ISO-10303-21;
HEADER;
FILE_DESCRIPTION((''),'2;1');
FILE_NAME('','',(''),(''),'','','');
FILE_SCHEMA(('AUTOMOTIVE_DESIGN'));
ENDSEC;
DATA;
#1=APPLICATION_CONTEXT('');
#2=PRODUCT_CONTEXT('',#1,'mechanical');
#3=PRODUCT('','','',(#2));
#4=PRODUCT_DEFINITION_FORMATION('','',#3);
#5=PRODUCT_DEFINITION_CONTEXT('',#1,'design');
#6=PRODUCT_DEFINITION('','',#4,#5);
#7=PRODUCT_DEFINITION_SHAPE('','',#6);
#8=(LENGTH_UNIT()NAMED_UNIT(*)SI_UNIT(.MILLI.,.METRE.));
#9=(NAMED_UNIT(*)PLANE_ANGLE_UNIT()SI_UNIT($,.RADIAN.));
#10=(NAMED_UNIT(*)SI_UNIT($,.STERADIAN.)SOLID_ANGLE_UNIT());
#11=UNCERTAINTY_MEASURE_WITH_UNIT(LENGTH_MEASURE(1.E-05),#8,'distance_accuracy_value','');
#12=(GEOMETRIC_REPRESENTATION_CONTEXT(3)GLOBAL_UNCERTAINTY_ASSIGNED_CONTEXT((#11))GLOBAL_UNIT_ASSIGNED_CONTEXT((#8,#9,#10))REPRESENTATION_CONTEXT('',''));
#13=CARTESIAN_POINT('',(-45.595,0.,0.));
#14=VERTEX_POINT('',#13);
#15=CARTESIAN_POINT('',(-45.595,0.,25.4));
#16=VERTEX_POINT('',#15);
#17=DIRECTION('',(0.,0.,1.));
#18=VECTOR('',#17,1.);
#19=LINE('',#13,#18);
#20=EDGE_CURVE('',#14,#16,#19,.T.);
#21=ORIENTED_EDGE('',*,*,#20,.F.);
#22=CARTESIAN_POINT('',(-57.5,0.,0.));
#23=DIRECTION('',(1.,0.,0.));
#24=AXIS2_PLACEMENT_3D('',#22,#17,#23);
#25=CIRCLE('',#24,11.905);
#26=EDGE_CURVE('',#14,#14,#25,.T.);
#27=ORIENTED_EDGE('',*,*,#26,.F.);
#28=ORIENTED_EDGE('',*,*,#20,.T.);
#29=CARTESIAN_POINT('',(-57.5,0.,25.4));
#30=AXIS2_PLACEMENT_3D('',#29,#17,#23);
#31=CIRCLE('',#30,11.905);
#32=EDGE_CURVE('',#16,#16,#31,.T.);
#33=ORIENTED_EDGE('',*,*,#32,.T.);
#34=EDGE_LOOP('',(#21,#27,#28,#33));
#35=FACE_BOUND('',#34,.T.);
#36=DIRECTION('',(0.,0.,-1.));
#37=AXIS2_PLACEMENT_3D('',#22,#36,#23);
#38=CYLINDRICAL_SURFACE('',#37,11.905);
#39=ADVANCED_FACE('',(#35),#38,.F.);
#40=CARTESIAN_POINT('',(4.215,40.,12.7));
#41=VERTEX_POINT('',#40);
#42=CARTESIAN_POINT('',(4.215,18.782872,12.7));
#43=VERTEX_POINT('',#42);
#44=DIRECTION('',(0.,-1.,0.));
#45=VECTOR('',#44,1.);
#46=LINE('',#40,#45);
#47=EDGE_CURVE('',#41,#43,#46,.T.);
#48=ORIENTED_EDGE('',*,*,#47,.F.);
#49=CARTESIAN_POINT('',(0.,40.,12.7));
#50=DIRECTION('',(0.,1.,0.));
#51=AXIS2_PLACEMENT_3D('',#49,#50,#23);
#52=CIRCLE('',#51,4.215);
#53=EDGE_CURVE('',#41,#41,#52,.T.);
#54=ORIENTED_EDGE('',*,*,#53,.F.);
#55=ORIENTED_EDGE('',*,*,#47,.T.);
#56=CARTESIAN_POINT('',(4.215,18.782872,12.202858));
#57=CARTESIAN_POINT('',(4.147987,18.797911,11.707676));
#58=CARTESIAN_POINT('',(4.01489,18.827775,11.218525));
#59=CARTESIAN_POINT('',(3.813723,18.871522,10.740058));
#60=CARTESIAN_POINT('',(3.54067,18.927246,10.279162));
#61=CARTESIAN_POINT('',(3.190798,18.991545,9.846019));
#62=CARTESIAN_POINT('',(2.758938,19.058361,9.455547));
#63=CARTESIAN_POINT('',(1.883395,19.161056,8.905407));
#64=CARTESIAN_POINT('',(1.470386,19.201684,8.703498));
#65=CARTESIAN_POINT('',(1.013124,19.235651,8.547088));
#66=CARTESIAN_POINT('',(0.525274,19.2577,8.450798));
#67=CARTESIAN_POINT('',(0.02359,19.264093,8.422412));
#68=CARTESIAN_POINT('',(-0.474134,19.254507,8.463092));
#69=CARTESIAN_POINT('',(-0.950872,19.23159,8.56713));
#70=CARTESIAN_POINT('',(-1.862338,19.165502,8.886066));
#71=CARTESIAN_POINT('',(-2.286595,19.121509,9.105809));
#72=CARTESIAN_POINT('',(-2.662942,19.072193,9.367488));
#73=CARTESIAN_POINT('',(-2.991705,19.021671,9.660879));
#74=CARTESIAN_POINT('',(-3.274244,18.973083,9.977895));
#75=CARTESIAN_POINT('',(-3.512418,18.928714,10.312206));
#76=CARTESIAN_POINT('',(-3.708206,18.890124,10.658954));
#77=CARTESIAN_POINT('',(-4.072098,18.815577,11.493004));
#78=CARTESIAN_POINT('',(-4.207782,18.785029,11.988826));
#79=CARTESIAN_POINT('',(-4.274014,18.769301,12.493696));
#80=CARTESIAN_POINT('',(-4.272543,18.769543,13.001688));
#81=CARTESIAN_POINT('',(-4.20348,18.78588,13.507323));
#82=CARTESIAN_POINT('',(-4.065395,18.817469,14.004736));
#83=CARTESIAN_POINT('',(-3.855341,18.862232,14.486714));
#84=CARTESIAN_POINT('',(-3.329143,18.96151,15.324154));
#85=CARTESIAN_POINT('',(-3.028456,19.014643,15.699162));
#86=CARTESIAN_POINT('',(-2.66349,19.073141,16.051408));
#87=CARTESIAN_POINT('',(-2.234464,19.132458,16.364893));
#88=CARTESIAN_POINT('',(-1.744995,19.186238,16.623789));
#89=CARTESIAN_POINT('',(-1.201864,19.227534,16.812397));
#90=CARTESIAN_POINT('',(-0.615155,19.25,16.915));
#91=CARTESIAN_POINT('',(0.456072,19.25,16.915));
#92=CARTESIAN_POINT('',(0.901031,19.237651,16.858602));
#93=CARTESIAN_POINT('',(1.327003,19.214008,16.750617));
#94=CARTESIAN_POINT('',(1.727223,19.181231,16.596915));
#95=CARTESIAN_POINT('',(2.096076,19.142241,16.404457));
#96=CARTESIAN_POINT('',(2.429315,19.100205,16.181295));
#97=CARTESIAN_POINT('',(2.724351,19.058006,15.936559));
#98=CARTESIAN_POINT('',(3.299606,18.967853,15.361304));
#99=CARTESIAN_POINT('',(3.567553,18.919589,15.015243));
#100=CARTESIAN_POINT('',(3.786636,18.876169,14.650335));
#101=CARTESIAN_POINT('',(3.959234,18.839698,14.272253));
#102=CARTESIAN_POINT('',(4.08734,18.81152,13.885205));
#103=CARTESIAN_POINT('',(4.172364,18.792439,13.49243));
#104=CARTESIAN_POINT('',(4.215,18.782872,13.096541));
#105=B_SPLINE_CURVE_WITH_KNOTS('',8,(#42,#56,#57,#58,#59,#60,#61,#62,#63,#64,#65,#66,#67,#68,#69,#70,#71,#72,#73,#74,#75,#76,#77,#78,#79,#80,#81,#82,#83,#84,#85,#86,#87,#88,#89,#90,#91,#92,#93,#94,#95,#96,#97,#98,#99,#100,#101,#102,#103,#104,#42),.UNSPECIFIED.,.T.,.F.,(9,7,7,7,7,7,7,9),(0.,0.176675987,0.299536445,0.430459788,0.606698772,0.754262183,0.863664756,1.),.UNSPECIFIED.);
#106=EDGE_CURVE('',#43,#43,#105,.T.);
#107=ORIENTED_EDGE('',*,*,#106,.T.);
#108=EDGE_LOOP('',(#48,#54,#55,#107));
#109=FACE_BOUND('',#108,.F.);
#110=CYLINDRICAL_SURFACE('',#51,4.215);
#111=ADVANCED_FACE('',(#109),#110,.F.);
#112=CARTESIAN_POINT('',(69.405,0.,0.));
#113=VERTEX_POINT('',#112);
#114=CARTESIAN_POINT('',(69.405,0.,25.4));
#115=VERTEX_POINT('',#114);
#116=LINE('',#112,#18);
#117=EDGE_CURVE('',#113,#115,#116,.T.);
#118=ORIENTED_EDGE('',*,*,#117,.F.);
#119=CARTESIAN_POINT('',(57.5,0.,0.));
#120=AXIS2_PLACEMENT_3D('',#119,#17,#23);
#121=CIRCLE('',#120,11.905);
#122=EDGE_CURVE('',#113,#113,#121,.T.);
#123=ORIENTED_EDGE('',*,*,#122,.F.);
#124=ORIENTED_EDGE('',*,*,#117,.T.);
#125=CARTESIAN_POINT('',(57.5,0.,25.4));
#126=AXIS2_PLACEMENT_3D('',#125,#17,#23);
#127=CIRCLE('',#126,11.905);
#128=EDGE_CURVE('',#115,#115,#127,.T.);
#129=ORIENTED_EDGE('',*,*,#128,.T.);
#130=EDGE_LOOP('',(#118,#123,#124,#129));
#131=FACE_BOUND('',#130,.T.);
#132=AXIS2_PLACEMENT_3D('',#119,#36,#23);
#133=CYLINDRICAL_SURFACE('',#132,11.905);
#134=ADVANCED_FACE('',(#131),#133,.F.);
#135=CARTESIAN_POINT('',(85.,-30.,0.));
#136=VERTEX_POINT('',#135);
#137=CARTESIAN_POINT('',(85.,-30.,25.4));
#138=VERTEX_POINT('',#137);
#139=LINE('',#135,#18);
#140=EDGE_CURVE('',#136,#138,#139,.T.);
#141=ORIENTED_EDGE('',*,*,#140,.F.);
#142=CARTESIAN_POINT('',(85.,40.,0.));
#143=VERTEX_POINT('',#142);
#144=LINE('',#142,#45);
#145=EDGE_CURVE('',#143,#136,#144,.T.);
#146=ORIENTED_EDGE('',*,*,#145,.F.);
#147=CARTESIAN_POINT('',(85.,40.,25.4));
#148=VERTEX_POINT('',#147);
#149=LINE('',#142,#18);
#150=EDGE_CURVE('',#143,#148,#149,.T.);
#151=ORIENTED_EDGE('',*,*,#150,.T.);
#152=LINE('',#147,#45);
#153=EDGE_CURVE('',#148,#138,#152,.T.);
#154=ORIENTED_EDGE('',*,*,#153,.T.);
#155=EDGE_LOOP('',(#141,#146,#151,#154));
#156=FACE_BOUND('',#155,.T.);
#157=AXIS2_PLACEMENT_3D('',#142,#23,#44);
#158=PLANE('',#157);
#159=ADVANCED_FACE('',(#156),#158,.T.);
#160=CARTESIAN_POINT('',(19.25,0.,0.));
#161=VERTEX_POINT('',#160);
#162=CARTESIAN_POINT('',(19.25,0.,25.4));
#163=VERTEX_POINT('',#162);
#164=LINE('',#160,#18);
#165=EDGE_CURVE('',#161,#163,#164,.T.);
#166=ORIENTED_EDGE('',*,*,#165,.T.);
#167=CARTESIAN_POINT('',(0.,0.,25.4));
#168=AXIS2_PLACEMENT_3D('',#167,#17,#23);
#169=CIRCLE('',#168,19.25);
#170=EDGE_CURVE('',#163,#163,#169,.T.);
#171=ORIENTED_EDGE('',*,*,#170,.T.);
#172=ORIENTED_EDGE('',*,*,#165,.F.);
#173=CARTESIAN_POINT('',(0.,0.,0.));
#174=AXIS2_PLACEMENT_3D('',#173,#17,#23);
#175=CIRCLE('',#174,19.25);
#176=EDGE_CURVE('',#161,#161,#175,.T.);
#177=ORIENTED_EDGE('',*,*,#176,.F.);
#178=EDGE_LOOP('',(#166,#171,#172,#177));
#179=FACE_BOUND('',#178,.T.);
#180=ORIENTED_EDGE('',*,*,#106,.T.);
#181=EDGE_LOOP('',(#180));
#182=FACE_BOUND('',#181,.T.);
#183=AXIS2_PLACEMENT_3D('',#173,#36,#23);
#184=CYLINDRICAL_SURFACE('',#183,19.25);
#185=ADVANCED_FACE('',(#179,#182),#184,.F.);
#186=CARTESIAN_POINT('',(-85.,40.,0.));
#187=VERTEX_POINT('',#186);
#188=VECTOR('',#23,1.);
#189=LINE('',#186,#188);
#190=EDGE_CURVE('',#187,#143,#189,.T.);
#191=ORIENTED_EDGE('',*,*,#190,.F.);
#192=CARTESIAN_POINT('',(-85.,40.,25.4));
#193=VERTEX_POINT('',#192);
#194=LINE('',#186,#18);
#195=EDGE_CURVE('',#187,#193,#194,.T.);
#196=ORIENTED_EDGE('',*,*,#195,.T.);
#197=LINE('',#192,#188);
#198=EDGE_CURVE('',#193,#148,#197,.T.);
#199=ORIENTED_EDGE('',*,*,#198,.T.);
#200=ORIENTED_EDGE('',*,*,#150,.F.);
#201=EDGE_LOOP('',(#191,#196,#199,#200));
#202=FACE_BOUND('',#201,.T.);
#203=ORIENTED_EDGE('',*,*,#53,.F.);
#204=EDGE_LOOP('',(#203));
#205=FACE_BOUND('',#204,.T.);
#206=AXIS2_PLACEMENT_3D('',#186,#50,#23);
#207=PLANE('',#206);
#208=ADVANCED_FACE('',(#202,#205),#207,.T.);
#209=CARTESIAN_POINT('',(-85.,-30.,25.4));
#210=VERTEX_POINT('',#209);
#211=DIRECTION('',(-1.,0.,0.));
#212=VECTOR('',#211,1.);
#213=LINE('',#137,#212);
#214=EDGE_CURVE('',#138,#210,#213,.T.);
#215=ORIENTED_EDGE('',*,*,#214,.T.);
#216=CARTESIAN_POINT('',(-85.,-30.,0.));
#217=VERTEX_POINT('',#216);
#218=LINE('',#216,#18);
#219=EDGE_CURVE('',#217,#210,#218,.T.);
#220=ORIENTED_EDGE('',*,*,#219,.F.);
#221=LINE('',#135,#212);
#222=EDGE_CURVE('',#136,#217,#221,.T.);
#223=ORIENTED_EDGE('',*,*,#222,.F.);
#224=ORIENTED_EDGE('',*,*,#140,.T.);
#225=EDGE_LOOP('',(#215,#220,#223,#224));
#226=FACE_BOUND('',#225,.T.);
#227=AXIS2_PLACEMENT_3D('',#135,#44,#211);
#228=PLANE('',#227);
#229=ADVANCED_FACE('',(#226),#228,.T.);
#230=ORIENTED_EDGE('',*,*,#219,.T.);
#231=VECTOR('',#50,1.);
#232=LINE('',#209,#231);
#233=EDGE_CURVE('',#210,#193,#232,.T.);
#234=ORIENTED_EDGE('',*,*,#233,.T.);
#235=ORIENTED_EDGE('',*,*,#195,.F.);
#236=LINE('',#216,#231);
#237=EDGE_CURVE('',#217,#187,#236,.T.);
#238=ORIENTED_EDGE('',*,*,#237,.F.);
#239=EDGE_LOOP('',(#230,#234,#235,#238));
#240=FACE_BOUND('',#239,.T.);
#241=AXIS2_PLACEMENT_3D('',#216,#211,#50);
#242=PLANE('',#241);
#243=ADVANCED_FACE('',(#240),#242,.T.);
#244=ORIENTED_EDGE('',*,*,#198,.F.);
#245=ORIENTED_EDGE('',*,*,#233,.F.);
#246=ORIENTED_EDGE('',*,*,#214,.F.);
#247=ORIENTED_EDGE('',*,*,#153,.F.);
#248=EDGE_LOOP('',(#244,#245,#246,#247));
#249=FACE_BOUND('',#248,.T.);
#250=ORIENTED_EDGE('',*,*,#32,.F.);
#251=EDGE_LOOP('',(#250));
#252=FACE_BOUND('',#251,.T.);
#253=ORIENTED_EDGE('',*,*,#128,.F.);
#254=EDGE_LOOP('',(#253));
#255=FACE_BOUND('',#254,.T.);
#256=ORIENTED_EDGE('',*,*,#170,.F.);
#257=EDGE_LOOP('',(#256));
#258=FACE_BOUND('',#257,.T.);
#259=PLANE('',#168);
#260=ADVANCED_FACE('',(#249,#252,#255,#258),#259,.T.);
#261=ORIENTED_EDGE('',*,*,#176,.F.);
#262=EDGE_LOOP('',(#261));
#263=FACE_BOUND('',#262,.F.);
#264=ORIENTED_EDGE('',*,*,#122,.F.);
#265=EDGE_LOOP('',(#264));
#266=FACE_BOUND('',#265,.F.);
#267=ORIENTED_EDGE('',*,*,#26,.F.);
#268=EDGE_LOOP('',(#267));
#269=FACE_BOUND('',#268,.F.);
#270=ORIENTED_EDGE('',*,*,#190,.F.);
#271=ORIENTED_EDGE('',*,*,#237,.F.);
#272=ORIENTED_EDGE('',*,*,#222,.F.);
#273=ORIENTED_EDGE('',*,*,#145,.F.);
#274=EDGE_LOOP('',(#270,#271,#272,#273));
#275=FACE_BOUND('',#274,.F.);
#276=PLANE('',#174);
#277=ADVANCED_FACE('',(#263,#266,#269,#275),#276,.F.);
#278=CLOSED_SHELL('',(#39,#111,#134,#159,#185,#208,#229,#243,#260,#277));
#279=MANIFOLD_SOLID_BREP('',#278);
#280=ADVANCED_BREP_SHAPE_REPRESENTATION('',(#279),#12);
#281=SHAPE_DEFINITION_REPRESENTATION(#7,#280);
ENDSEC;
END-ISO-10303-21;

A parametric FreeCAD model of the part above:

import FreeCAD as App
import Part
import Sketcher


def add_polygon(sketch, points):
    """Adds a closed chain of lines whose ends are joined by coincident constraints."""
    first, n = sketch.GeometryCount, len(points)
    for a, b in zip(points, points[1:] + points[:1]):
        sketch.addGeometry(Part.LineSegment(App.Vector(*a, 0), App.Vector(*b, 0)), False)
    for i in range(n):
        sketch.addConstraint(Sketcher.Constraint("Coincident", first + i, 2, first + (i + 1) % n, 1))

doc = App.newDocument("Part")
params = doc.addObject("Spreadsheet::Sheet", "Params")
for row, (alias, value) in enumerate([
    ("sketch1_diameter", "38.5 mm"),
    ("sketch1_diameter2", "23.81 mm"),
    ("sketch1_width", "170 mm"),
    ("sketch1_height", "70 mm"),
    ("pad1_length", "25.4 mm"),
    ("sketch2_diameter", "8.43 mm"),
    ("pocket1_length", "25.4 mm"),
], start=1):
    params.set(f"A{row}", alias)
    params.set(f"B{row}", "=" + value)
    params.setAlias(f"B{row}", alias)

body = doc.addObject("PartDesign::Body", "Body")

# Sketch on XY plane
sketch1 = body.newObject("Sketcher::SketchObject", "Sketch")
sketch1.AttachmentSupport = (doc.getObject("XY_Plane"), [""])
sketch1.MapMode = "FlatFace"
add_polygon(sketch1, [(85, 40), (-85, 40), (-85, -30), (85, -30)])  # lines 0-3
sketch1.addGeometry(Part.Circle(App.Vector(-57.5, 0, 0), App.Vector(0, 0, 1), 11.905), False)  # 4
sketch1.addGeometry(Part.Circle(App.Vector(0, 0, 0), App.Vector(0, 0, 1), 19.25), False)  # 5
sketch1.addGeometry(Part.Circle(App.Vector(57.5, 0, 0), App.Vector(0, 0, 1), 11.905), False)  # 6
sketch1.addConstraint(Sketcher.Constraint("Horizontal", 0))
sketch1.addConstraint(Sketcher.Constraint("Vertical", 1))
sketch1.addConstraint(Sketcher.Constraint("Horizontal", 2))
sketch1.addConstraint(Sketcher.Constraint("Vertical", 3))
sketch1.addConstraint(Sketcher.Constraint("Coincident", 5, 3, -1, 1))
sketch1.addConstraint(Sketcher.Constraint("Equal", 4, 6))
sketch1.addConstraint(Sketcher.Constraint("Symmetric", 4, 3, 6, 3, -1, 1))
sketch1.addConstraint(Sketcher.Constraint("PointOnObject", 4, 3, -1))
sketch1.addConstraint(Sketcher.Constraint("Diameter", 5, 38.5))
sketch1.addConstraint(Sketcher.Constraint("Diameter", 4, 23.81))
sketch1.addConstraint(Sketcher.Constraint("DistanceX", 0, 2, 0, 1, 170.0))
sketch1.addConstraint(Sketcher.Constraint("DistanceY", 1, 2, 1, 1, 70.0))
sketch1.addConstraint(Sketcher.Constraint("DistanceX", 0, 2, -1, 1, 85.0))
sketch1.addConstraint(Sketcher.Constraint("DistanceY", -1, 1, 0, 2, 40.0))
sketch1.addConstraint(Sketcher.Constraint("DistanceX", 4, 3, -1, 1, 57.5))
sketch1.setExpression("Constraints[12]", "Params.sketch1_diameter")
sketch1.setExpression("Constraints[13]", "Params.sketch1_diameter2")
sketch1.setExpression("Constraints[14]", "Params.sketch1_width")
sketch1.setExpression("Constraints[15]", "Params.sketch1_height")
pad1 = body.newObject("PartDesign::Pad", "Pad")
pad1.Profile = sketch1
pad1.setExpression("Length", "Params.pad1_length")

# Sketch on XZ plane
sketch2 = body.newObject("Sketcher::SketchObject", "Sketch001")
sketch2.AttachmentSupport = (doc.getObject("XZ_Plane"), [""])
sketch2.MapMode = "FlatFace"
sketch2.AttachmentOffset = App.Placement(App.Vector(0, 0, -40), App.Rotation())
sketch2.addGeometry(Part.Circle(App.Vector(0, 12.7, 0), App.Vector(0, 0, 1), 4.215), False)
sketch2.addConstraint(Sketcher.Constraint("PointOnObject", 0, 3, -2))
sketch2.addConstraint(Sketcher.Constraint("Diameter", 0, 8.43))
sketch2.addConstraint(Sketcher.Constraint("DistanceY", -1, 1, 0, 3, 12.7))
sketch2.setExpression("Constraints[1]", "Params.sketch2_diameter")
pocket1 = body.newObject("PartDesign::Pocket", "Pocket")
pocket1.Profile = sketch2
pocket1.setExpression("Length", "Params.pocket1_length")
pocket1.Reversed = True

doc.recompute()
